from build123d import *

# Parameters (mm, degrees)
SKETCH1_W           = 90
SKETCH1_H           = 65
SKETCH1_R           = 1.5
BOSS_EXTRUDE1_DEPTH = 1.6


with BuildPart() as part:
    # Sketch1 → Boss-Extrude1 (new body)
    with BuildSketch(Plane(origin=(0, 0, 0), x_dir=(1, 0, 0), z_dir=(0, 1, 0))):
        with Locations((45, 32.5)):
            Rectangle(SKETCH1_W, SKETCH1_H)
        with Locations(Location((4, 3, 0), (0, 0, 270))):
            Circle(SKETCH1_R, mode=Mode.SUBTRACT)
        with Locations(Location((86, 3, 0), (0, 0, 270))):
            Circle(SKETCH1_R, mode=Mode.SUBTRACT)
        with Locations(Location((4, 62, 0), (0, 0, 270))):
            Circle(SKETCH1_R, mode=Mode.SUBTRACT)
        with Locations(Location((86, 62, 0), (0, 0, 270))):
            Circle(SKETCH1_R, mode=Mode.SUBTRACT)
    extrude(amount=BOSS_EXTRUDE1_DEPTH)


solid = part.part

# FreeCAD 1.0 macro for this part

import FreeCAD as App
import Part
import Sketcher

V = App.Vector


def add_polygon(sketch, points):
    """Adds a closed chain of lines whose ends are joined by coincident constraints."""
    first, n = sketch.GeometryCount, len(points)
    for a, b in zip(points, points[1:] + points[:1]):
        sketch.addGeometry(Part.LineSegment(App.Vector(*a, 0), App.Vector(*b, 0)), False)
    for i in range(n):
        sketch.addConstraint(Sketcher.Constraint("Coincident", first + i, 2, first + (i + 1) % n, 1))

doc = App.newDocument("Part")
params = doc.addObject("Spreadsheet::Sheet", "Params")
for row, (alias, value) in enumerate([
    ("sketch1_diameter", "3 mm"),
    ("sketch1_width", "90 mm"),
    ("sketch1_height", "65 mm"),
    ("pad1_length", "1.6 mm"),
], start=1):
    params.set(f"A{row}", alias)
    params.set(f"B{row}", "=" + value)
    params.setAlias(f"B{row}", alias)

body = doc.addObject("PartDesign::Body", "Body")

sketch1 = body.newObject("Sketcher::SketchObject", "Sketch")
sketch1.AttachmentSupport = (doc.getObject("XZ_Plane"), [""])
sketch1.MapMode = "FlatFace"
add_polygon(sketch1, [(0, -65), (0, 0), (90, 0), (90, -65)])
sketch1.addGeometry(Part.Circle(V(4, -3, 0), V(0, 0, 1), 1.5), False)
sketch1.addGeometry(Part.Circle(V(86, -3, 0), V(0, 0, 1), 1.5), False)
sketch1.addGeometry(Part.Circle(V(4, -62, 0), V(0, 0, 1), 1.5), False)
sketch1.addGeometry(Part.Circle(V(86, -62, 0), V(0, 0, 1), 1.5), False)
sketch1.addConstraint([
    Sketcher.Constraint("Vertical", 0),
    Sketcher.Constraint("Horizontal", 1),
    Sketcher.Constraint("Vertical", 2),
    Sketcher.Constraint("Horizontal", 3),
    Sketcher.Constraint("Coincident", 0, 2, -1, 1),
    Sketcher.Constraint("Equal", 4, 5),
    Sketcher.Constraint("Equal", 5, 6),
    Sketcher.Constraint("Equal", 6, 7),
    Sketcher.Constraint("Horizontal", 4, 3, 5, 3),
    Sketcher.Constraint("Horizontal", 6, 3, 7, 3),
    Sketcher.Constraint("Vertical", 4, 3, 6, 3),
    Sketcher.Constraint("Vertical", 5, 3, 7, 3),
    Sketcher.Constraint("Diameter", 4, 3.0),
    Sketcher.Constraint("DistanceX", 1, 1, 1, 2, 90.0),
    Sketcher.Constraint("DistanceY", 0, 1, 0, 2, 65.0),
    Sketcher.Constraint("DistanceX", -1, 1, 4, 3, 4.0),
    Sketcher.Constraint("DistanceY", 4, 3, -1, 1, 3.0),
    Sketcher.Constraint("DistanceX", -1, 1, 5, 3, 86.0),
    Sketcher.Constraint("DistanceY", 6, 3, -1, 1, 62.0),
])
sketch1.setExpression("Constraints[16]", "Params.sketch1_diameter")
sketch1.setExpression("Constraints[17]", "Params.sketch1_width")
sketch1.setExpression("Constraints[18]", "Params.sketch1_height")
pad1 = body.newObject("PartDesign::Pad", "Pad")
pad1.Profile = sketch1
pad1.setExpression("Length", "Params.pad1_length")
pad1.Reversed = True

doc.recompute()
